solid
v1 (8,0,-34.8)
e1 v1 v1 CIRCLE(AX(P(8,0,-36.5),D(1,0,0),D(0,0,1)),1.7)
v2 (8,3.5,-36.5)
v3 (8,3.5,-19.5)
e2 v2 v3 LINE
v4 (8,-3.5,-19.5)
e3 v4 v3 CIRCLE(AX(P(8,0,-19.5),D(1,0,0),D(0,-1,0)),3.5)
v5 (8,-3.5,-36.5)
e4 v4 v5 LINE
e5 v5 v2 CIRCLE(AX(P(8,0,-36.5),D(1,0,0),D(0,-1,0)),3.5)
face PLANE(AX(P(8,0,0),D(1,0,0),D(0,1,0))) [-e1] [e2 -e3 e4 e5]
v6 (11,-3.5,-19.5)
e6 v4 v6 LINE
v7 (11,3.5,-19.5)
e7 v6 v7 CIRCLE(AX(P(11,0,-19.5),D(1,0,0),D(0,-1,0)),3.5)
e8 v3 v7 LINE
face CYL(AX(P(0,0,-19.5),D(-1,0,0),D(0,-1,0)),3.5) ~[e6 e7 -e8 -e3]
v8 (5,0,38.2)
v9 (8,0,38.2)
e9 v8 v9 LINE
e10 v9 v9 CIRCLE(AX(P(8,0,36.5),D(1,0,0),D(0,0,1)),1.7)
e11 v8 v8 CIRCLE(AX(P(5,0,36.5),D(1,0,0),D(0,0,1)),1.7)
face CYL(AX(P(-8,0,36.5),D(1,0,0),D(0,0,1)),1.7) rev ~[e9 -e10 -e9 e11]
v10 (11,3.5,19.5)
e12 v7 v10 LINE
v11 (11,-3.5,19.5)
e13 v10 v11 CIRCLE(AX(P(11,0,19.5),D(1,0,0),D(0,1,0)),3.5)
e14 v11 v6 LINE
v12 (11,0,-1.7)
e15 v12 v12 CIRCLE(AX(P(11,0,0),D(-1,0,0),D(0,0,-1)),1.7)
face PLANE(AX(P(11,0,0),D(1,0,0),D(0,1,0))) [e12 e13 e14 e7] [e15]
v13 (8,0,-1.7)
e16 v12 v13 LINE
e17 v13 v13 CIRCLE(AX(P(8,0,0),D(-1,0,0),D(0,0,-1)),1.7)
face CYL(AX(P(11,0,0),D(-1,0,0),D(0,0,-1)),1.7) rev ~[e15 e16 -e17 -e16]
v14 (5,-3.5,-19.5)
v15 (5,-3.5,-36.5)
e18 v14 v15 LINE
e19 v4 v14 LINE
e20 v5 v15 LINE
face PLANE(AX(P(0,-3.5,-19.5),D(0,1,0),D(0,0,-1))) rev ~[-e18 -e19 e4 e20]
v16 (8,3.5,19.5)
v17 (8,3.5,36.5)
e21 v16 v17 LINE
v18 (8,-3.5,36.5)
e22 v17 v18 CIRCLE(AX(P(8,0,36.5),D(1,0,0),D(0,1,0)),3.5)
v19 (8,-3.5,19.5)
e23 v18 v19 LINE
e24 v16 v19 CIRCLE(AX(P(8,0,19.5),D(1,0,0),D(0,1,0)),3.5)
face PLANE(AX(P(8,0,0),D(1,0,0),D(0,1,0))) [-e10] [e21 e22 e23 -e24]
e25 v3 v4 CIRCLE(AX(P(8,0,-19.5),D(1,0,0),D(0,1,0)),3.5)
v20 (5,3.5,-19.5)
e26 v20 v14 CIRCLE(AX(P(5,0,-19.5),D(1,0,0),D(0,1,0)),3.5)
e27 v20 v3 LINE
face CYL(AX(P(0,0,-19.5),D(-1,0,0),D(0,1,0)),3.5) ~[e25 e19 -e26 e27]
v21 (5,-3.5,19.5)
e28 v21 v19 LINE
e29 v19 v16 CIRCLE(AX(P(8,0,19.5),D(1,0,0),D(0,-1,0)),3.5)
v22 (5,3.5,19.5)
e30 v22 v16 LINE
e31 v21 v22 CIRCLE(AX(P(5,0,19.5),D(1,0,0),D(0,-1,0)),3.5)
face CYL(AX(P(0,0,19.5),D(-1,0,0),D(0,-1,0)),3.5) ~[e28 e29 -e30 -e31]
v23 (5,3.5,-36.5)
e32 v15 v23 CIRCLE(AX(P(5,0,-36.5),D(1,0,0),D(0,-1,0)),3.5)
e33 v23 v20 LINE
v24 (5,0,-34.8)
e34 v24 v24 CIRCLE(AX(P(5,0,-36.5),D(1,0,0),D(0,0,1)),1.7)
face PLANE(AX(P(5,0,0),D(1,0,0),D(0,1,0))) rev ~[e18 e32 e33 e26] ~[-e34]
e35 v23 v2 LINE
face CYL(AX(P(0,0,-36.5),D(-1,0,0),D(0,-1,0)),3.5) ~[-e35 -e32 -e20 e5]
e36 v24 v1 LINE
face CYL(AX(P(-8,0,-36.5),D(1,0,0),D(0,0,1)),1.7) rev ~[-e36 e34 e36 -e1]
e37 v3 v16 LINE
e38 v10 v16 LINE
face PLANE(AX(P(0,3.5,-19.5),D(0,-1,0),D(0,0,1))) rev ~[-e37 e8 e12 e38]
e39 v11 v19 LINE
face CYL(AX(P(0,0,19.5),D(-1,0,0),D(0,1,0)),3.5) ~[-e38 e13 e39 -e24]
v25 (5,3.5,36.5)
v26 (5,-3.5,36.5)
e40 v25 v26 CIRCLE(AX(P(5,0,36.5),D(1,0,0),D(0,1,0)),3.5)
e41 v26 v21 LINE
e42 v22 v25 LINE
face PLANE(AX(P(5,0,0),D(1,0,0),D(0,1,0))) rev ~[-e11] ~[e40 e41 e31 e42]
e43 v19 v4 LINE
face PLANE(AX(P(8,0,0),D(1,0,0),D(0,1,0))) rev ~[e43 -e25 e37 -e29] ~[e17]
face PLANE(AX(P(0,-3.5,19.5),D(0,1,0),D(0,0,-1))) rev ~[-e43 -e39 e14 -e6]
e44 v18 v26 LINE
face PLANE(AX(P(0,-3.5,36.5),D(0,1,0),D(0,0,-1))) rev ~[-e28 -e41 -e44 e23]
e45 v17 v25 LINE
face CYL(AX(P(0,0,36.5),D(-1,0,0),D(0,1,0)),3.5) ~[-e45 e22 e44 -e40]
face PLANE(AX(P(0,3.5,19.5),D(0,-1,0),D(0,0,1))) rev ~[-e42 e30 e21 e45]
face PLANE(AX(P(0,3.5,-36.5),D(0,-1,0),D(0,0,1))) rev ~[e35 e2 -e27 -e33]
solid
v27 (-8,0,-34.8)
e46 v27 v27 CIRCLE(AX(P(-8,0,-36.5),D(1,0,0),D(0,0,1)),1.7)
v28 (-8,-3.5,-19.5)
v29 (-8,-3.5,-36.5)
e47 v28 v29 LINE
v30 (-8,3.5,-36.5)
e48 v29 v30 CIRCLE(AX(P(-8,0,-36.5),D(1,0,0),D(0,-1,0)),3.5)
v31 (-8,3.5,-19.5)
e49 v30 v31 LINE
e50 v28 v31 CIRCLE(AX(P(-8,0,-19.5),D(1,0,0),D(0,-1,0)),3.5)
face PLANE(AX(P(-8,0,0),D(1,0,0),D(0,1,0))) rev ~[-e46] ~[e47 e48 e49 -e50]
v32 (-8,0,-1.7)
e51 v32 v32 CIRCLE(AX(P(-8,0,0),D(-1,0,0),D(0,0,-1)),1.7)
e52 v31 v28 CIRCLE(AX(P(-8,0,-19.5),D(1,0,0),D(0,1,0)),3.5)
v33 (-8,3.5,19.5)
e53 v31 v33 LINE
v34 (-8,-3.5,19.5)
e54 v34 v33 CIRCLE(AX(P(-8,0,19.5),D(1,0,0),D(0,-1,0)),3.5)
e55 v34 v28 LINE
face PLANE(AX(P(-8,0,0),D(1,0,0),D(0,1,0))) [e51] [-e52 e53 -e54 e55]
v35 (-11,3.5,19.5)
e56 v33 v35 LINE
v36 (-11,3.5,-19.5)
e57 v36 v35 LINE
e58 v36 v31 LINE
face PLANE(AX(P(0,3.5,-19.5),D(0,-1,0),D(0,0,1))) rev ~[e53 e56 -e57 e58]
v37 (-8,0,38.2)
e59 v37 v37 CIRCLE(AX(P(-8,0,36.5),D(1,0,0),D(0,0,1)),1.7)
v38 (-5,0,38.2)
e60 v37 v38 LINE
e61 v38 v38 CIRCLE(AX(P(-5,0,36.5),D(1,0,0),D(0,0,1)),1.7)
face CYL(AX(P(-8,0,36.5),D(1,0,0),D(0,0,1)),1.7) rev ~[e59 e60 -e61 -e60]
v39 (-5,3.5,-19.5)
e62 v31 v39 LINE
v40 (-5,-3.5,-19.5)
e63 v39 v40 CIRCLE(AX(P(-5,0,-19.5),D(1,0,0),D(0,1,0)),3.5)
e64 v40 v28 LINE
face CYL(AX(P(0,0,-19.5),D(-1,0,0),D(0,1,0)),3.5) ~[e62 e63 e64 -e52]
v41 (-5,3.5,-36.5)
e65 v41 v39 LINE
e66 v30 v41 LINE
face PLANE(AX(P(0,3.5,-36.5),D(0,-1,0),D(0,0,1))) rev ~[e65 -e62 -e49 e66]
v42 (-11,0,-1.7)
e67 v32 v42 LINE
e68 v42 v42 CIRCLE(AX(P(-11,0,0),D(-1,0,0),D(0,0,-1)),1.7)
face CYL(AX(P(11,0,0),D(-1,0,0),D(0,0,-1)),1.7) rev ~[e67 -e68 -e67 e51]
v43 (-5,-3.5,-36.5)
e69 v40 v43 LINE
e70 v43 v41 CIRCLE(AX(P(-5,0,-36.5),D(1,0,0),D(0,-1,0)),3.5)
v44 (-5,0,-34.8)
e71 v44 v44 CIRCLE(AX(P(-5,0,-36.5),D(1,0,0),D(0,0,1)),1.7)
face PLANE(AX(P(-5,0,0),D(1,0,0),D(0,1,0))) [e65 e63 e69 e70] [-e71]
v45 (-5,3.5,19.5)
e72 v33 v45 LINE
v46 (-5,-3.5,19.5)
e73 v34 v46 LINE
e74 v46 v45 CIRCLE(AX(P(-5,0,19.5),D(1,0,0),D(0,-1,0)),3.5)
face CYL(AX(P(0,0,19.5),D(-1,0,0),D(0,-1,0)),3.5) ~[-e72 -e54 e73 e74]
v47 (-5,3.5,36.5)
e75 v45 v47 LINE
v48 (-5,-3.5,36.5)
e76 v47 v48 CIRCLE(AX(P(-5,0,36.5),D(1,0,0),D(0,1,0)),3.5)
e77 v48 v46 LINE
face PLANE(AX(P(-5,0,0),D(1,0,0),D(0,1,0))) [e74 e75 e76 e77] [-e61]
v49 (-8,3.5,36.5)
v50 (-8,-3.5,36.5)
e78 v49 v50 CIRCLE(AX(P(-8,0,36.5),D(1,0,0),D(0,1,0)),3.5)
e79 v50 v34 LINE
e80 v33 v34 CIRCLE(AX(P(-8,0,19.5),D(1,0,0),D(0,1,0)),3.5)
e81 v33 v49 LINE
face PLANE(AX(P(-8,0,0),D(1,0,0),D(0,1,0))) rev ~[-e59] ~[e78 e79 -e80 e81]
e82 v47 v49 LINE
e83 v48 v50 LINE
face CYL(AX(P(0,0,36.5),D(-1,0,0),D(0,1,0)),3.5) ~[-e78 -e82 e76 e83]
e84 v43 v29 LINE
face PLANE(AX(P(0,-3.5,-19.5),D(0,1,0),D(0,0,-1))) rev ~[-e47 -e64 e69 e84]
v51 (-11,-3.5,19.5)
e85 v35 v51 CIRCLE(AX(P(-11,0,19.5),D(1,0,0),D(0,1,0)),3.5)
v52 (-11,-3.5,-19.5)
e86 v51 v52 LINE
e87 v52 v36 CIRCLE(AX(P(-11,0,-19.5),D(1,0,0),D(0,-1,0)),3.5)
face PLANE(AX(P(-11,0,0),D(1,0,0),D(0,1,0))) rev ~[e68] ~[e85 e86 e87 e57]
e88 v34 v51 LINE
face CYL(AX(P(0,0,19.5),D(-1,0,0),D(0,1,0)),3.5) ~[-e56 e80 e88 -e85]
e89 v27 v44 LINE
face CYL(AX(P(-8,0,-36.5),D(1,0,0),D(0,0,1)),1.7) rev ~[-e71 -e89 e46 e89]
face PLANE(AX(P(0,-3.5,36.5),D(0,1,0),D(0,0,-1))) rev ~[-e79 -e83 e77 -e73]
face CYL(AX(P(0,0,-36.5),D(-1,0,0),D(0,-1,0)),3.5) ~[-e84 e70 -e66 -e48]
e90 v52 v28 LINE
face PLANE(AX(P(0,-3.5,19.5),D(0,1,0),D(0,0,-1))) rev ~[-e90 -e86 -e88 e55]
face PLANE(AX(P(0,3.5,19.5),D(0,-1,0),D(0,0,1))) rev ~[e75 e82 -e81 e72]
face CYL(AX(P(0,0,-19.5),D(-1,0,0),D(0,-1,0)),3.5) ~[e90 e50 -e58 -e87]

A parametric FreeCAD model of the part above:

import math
import FreeCAD as App
import Part
import Sketcher
from FreeCAD import Vector
Q = App.Units.Quantity

doc = App.newDocument("Part")
params = doc.addObject("Spreadsheet::Sheet", "Params")
for row, (alias, value) in enumerate([
    ("sketch1_radius", "3.5 mm"),
    ("sketch1_height", "39 mm"),
    ("pad1_length", "22 mm"),
    ("sketch2_radius", "3.5 mm"),
    ("sketch2_height", "39 mm"),
    ("pocket1_length", "16 mm"),
    ("sketch3_radius", "3.5 mm"),
    ("sketch3_height", "17 mm"),
    ("pad2_length", "16 mm"),
    ("sketch4_radius", "3.5 mm"),
    ("sketch4_height", "17 mm"),
    ("pocket2_length", "10 mm"),
    ("sketch5_diameter", "3.4 mm"),
    ("hole_diameter", "3.4 mm"),
    ("sketch6_diameter", "3.4 mm"),
    ("hole2_diameter", "3.4 mm"),
], start=1):
    params.set(f"A{row}", alias)
    params.set(f"B{row}", "=" + value)
    params.setAlias(f"B{row}", alias)

body = doc.addObject("PartDesign::Body", "Body")
body.AllowCompound = True

# Sketch on YZ plane
sketch1 = body.newObject("Sketcher::SketchObject", "Sketch")
sketch1.AttachmentSupport = (doc.getObject("YZ_Plane"), [""])
sketch1.MapMode = "FlatFace"
sketch1.addGeometry([
    Part.LineSegment(Vector(-3.5, 19.5, 0), Vector(-3.5, -19.5, 0)),
    Part.ArcOfCircle(Part.Circle(Vector(0, -19.5, 0), Vector(0, 0, 1), 3.5), math.radians(180), math.radians(360)),
    Part.LineSegment(Vector(3.5, -19.5, 0), Vector(3.5, 19.5, 0)),
    Part.ArcOfCircle(Part.Circle(Vector(0, 19.5, 0), Vector(0, 0, 1), 3.5), math.radians(0), math.radians(180)),
], False)
sketch1.addConstraint([
    Sketcher.Constraint("Tangent", 0, 2, 1, 1),
    Sketcher.Constraint("Tangent", 1, 2, 2, 1),
    Sketcher.Constraint("Tangent", 2, 2, 3, 1),
    Sketcher.Constraint("Tangent", 3, 2, 0, 1),
    Sketcher.Constraint("Vertical", 0),
    Sketcher.Constraint("Vertical", 2),
    Sketcher.Constraint("Symmetric", 1, 3, 3, 3, -1, 1),
    Sketcher.Constraint("Radius", 1, Q("3.5 mm")),
    Sketcher.Constraint("DistanceY", 0, 2, 0, 1, Q("39 mm")),
])
sketch1.setExpression("Constraints[7]", "Params.sketch1_radius")
sketch1.setExpression("Constraints[8]", "Params.sketch1_height")
pad1 = body.newObject("PartDesign::Pad", "Pad")
pad1.Profile = sketch1
pad1.setExpression("Length", "Params.pad1_length")
pad1.Midplane = True

# Sketch on YZ plane
sketch2 = body.newObject("Sketcher::SketchObject", "Sketch001")
sketch2.AttachmentSupport = (doc.getObject("YZ_Plane"), [""])
sketch2.MapMode = "FlatFace"
sketch2.addGeometry([
    Part.LineSegment(Vector(-3.5, 19.5, 0), Vector(-3.5, -19.5, 0)),
    Part.ArcOfCircle(Part.Circle(Vector(0, -19.5, 0), Vector(0, 0, 1), 3.5), math.radians(180), math.radians(360)),
    Part.LineSegment(Vector(3.5, -19.5, 0), Vector(3.5, 19.5, 0)),
    Part.ArcOfCircle(Part.Circle(Vector(0, 19.5, 0), Vector(0, 0, 1), 3.5), math.radians(0), math.radians(180)),
], False)
sketch2.addConstraint([
    Sketcher.Constraint("Tangent", 0, 2, 1, 1),
    Sketcher.Constraint("Tangent", 1, 2, 2, 1),
    Sketcher.Constraint("Tangent", 2, 2, 3, 1),
    Sketcher.Constraint("Tangent", 3, 2, 0, 1),
    Sketcher.Constraint("Vertical", 0),
    Sketcher.Constraint("Vertical", 2),
    Sketcher.Constraint("Symmetric", 1, 3, 3, 3, -1, 1),
    Sketcher.Constraint("Radius", 1, Q("3.5 mm")),
    Sketcher.Constraint("DistanceY", 0, 2, 0, 1, Q("39 mm")),
])
sketch2.setExpression("Constraints[7]", "Params.sketch2_radius")
sketch2.setExpression("Constraints[8]", "Params.sketch2_height")
pocket1 = body.newObject("PartDesign::Pocket", "Pocket")
pocket1.Profile = sketch2
pocket1.setExpression("Length", "Params.pocket1_length")
pocket1.Midplane = True

# Sketch on YZ plane
sketch3 = body.newObject("Sketcher::SketchObject", "Sketch002")
sketch3.AttachmentSupport = (doc.getObject("YZ_Plane"), [""])
sketch3.MapMode = "FlatFace"
sketch3.addGeometry([
    Part.ArcOfCircle(Part.Circle(Vector(0, -36.5, 0), Vector(0, 0, 1), 3.5), math.radians(180), math.radians(360)),  # 0
    Part.LineSegment(Vector(3.5, -36.5, 0), Vector(3.5, -19.5, 0)),  # 1
    Part.ArcOfCircle(Part.Circle(Vector(0, -19.5, 0), Vector(0, 0, 1), 3.5), math.radians(0), math.radians(180)),  # 2
    Part.LineSegment(Vector(-3.5, -19.5, 0), Vector(-3.5, -36.5, 0)),  # 3
    Part.LineSegment(Vector(-3.5, 36.5, 0), Vector(-3.5, 19.5, 0)),  # 4
    Part.ArcOfCircle(Part.Circle(Vector(0, 19.5, 0), Vector(0, 0, 1), 3.5), math.radians(180), math.radians(360)),  # 5
    Part.LineSegment(Vector(3.5, 19.5, 0), Vector(3.5, 36.5, 0)),  # 6
    Part.ArcOfCircle(Part.Circle(Vector(0, 36.5, 0), Vector(0, 0, 1), 3.5), math.radians(0), math.radians(180)),  # 7
], False)
sketch3.addConstraint([
    Sketcher.Constraint("Tangent", 0, 2, 1, 1),
    Sketcher.Constraint("Tangent", 1, 2, 2, 1),
    Sketcher.Constraint("Tangent", 2, 2, 3, 1),
    Sketcher.Constraint("Tangent", 3, 2, 0, 1),
    Sketcher.Constraint("Tangent", 4, 2, 5, 1),
    Sketcher.Constraint("Tangent", 5, 2, 6, 1),
    Sketcher.Constraint("Tangent", 6, 2, 7, 1),
    Sketcher.Constraint("Tangent", 7, 2, 4, 1),
    Sketcher.Constraint("Vertical", 1),
    Sketcher.Constraint("Vertical", 3),
    Sketcher.Constraint("Vertical", 4),
    Sketcher.Constraint("Vertical", 6),
    Sketcher.Constraint("Equal", 2, 5),
    Sketcher.Constraint("Symmetric", 2, 3, 5, 3, -1, 1),
    Sketcher.Constraint("Symmetric", 0, 3, 7, 3, -1),
    Sketcher.Constraint("Radius", 0, Q("3.5 mm")),
    Sketcher.Constraint("DistanceY", 2, 3, 5, 3, Q("39 mm")),
    Sketcher.Constraint("DistanceY", 1, 1, 1, 2, Q("17 mm")),
])
sketch3.setExpression("Constraints[15]", "Params.sketch3_radius")
sketch3.setExpression("Constraints[17]", "Params.sketch3_height")
pad2 = body.newObject("PartDesign::Pad", "Pad001")
pad2.Profile = sketch3
pad2.setExpression("Length", "Params.pad2_length")
pad2.Midplane = True

# Sketch on YZ plane
sketch4 = body.newObject("Sketcher::SketchObject", "Sketch003")
sketch4.AttachmentSupport = (doc.getObject("YZ_Plane"), [""])
sketch4.MapMode = "FlatFace"
sketch4.addGeometry([
    Part.ArcOfCircle(Part.Circle(Vector(0, -36.5, 0), Vector(0, 0, 1), 3.5), math.radians(180), math.radians(360)),  # 0
    Part.LineSegment(Vector(3.5, -36.5, 0), Vector(3.5, -19.5, 0)),  # 1
    Part.ArcOfCircle(Part.Circle(Vector(0, -19.5, 0), Vector(0, 0, 1), 3.5), math.radians(0), math.radians(180)),  # 2
    Part.LineSegment(Vector(-3.5, -19.5, 0), Vector(-3.5, -36.5, 0)),  # 3
    Part.LineSegment(Vector(-3.5, 36.5, 0), Vector(-3.5, 19.5, 0)),  # 4
    Part.ArcOfCircle(Part.Circle(Vector(0, 19.5, 0), Vector(0, 0, 1), 3.5), math.radians(180), math.radians(360)),  # 5
    Part.LineSegment(Vector(3.5, 19.5, 0), Vector(3.5, 36.5, 0)),  # 6
    Part.ArcOfCircle(Part.Circle(Vector(0, 36.5, 0), Vector(0, 0, 1), 3.5), math.radians(0), math.radians(180)),  # 7
], False)
sketch4.addConstraint([
    Sketcher.Constraint("Tangent", 0, 2, 1, 1),
    Sketcher.Constraint("Tangent", 1, 2, 2, 1),
    Sketcher.Constraint("Tangent", 2, 2, 3, 1),
    Sketcher.Constraint("Tangent", 3, 2, 0, 1),
    Sketcher.Constraint("Tangent", 4, 2, 5, 1),
    Sketcher.Constraint("Tangent", 5, 2, 6, 1),
    Sketcher.Constraint("Tangent", 6, 2, 7, 1),
    Sketcher.Constraint("Tangent", 7, 2, 4, 1),
    Sketcher.Constraint("Vertical", 1),
    Sketcher.Constraint("Vertical", 3),
    Sketcher.Constraint("Vertical", 4),
    Sketcher.Constraint("Vertical", 6),
    Sketcher.Constraint("Equal", 2, 5),
    Sketcher.Constraint("Symmetric", 2, 3, 5, 3, -1, 1),
    Sketcher.Constraint("Symmetric", 0, 3, 7, 3, -1),
    Sketcher.Constraint("Radius", 0, Q("3.5 mm")),
    Sketcher.Constraint("DistanceY", 2, 3, 5, 3, Q("39 mm")),
    Sketcher.Constraint("DistanceY", 1, 1, 1, 2, Q("17 mm")),
])
sketch4.setExpression("Constraints[15]", "Params.sketch4_radius")
sketch4.setExpression("Constraints[17]", "Params.sketch4_height")
pocket2 = body.newObject("PartDesign::Pocket", "Pocket001")
pocket2.Profile = sketch4
pocket2.setExpression("Length", "Params.pocket2_length")
pocket2.Midplane = True

# Sketch on YZ plane
sketch5 = body.newObject("Sketcher::SketchObject", "Sketch004")
sketch5.AttachmentSupport = (doc.getObject("YZ_Plane"), [""])
sketch5.MapMode = "FlatFace"
sketch5.AttachmentOffset = App.Placement(Vector(0, 0, -8), App.Rotation())
sketch5.addGeometry([
    Part.Circle(Vector(0, -36.5, 0), Vector(0, 0, 1), 1.7),
    Part.Circle(Vector(0, 36.5, 0), Vector(0, 0, 1), 1.7),
], False)
sketch5.addConstraint([
    Sketcher.Constraint("Equal", 0, 1),
    Sketcher.Constraint("Symmetric", 0, 3, 1, 3, -1, 1),
    Sketcher.Constraint("PointOnObject", 0, 3, -2),
    Sketcher.Constraint("Diameter", 0, Q("3.4 mm")),
    Sketcher.Constraint("DistanceY", 0, 3, 1, 3, Q("73 mm")),
])
sketch5.setExpression("Constraints[3]", "Params.sketch5_diameter")
doc.recompute()
hole = body.newObject("PartDesign::Hole", "Hole")
hole.Profile = sketch5
hole.ThreadType = "None"
hole.setExpression("Diameter", "Params.hole_diameter")
hole.DepthType = "ThroughAll"
hole.Reversed = True

# Sketch on YZ plane
sketch6 = body.newObject("Sketcher::SketchObject", "Sketch005")
sketch6.AttachmentSupport = (doc.getObject("YZ_Plane"), [""])
sketch6.MapMode = "FlatFace"
sketch6.AttachmentOffset = App.Placement(Vector(0, 0, 11), App.Rotation())
sketch6.addGeometry(Part.Circle(Vector(0, 0, 0), Vector(0, 0, 1), 1.7), False)
sketch6.addConstraint([
    Sketcher.Constraint("Coincident", 0, 3, -1, 1),
    Sketcher.Constraint("Diameter", 0, Q("3.4 mm")),
])
sketch6.setExpression("Constraints[1]", "Params.sketch6_diameter")
doc.recompute()
hole2 = body.newObject("PartDesign::Hole", "Hole001")
hole2.Profile = sketch6
hole2.ThreadType = "None"
hole2.setExpression("Diameter", "Params.hole2_diameter")
hole2.DepthType = "ThroughAll"

doc.recompute()
